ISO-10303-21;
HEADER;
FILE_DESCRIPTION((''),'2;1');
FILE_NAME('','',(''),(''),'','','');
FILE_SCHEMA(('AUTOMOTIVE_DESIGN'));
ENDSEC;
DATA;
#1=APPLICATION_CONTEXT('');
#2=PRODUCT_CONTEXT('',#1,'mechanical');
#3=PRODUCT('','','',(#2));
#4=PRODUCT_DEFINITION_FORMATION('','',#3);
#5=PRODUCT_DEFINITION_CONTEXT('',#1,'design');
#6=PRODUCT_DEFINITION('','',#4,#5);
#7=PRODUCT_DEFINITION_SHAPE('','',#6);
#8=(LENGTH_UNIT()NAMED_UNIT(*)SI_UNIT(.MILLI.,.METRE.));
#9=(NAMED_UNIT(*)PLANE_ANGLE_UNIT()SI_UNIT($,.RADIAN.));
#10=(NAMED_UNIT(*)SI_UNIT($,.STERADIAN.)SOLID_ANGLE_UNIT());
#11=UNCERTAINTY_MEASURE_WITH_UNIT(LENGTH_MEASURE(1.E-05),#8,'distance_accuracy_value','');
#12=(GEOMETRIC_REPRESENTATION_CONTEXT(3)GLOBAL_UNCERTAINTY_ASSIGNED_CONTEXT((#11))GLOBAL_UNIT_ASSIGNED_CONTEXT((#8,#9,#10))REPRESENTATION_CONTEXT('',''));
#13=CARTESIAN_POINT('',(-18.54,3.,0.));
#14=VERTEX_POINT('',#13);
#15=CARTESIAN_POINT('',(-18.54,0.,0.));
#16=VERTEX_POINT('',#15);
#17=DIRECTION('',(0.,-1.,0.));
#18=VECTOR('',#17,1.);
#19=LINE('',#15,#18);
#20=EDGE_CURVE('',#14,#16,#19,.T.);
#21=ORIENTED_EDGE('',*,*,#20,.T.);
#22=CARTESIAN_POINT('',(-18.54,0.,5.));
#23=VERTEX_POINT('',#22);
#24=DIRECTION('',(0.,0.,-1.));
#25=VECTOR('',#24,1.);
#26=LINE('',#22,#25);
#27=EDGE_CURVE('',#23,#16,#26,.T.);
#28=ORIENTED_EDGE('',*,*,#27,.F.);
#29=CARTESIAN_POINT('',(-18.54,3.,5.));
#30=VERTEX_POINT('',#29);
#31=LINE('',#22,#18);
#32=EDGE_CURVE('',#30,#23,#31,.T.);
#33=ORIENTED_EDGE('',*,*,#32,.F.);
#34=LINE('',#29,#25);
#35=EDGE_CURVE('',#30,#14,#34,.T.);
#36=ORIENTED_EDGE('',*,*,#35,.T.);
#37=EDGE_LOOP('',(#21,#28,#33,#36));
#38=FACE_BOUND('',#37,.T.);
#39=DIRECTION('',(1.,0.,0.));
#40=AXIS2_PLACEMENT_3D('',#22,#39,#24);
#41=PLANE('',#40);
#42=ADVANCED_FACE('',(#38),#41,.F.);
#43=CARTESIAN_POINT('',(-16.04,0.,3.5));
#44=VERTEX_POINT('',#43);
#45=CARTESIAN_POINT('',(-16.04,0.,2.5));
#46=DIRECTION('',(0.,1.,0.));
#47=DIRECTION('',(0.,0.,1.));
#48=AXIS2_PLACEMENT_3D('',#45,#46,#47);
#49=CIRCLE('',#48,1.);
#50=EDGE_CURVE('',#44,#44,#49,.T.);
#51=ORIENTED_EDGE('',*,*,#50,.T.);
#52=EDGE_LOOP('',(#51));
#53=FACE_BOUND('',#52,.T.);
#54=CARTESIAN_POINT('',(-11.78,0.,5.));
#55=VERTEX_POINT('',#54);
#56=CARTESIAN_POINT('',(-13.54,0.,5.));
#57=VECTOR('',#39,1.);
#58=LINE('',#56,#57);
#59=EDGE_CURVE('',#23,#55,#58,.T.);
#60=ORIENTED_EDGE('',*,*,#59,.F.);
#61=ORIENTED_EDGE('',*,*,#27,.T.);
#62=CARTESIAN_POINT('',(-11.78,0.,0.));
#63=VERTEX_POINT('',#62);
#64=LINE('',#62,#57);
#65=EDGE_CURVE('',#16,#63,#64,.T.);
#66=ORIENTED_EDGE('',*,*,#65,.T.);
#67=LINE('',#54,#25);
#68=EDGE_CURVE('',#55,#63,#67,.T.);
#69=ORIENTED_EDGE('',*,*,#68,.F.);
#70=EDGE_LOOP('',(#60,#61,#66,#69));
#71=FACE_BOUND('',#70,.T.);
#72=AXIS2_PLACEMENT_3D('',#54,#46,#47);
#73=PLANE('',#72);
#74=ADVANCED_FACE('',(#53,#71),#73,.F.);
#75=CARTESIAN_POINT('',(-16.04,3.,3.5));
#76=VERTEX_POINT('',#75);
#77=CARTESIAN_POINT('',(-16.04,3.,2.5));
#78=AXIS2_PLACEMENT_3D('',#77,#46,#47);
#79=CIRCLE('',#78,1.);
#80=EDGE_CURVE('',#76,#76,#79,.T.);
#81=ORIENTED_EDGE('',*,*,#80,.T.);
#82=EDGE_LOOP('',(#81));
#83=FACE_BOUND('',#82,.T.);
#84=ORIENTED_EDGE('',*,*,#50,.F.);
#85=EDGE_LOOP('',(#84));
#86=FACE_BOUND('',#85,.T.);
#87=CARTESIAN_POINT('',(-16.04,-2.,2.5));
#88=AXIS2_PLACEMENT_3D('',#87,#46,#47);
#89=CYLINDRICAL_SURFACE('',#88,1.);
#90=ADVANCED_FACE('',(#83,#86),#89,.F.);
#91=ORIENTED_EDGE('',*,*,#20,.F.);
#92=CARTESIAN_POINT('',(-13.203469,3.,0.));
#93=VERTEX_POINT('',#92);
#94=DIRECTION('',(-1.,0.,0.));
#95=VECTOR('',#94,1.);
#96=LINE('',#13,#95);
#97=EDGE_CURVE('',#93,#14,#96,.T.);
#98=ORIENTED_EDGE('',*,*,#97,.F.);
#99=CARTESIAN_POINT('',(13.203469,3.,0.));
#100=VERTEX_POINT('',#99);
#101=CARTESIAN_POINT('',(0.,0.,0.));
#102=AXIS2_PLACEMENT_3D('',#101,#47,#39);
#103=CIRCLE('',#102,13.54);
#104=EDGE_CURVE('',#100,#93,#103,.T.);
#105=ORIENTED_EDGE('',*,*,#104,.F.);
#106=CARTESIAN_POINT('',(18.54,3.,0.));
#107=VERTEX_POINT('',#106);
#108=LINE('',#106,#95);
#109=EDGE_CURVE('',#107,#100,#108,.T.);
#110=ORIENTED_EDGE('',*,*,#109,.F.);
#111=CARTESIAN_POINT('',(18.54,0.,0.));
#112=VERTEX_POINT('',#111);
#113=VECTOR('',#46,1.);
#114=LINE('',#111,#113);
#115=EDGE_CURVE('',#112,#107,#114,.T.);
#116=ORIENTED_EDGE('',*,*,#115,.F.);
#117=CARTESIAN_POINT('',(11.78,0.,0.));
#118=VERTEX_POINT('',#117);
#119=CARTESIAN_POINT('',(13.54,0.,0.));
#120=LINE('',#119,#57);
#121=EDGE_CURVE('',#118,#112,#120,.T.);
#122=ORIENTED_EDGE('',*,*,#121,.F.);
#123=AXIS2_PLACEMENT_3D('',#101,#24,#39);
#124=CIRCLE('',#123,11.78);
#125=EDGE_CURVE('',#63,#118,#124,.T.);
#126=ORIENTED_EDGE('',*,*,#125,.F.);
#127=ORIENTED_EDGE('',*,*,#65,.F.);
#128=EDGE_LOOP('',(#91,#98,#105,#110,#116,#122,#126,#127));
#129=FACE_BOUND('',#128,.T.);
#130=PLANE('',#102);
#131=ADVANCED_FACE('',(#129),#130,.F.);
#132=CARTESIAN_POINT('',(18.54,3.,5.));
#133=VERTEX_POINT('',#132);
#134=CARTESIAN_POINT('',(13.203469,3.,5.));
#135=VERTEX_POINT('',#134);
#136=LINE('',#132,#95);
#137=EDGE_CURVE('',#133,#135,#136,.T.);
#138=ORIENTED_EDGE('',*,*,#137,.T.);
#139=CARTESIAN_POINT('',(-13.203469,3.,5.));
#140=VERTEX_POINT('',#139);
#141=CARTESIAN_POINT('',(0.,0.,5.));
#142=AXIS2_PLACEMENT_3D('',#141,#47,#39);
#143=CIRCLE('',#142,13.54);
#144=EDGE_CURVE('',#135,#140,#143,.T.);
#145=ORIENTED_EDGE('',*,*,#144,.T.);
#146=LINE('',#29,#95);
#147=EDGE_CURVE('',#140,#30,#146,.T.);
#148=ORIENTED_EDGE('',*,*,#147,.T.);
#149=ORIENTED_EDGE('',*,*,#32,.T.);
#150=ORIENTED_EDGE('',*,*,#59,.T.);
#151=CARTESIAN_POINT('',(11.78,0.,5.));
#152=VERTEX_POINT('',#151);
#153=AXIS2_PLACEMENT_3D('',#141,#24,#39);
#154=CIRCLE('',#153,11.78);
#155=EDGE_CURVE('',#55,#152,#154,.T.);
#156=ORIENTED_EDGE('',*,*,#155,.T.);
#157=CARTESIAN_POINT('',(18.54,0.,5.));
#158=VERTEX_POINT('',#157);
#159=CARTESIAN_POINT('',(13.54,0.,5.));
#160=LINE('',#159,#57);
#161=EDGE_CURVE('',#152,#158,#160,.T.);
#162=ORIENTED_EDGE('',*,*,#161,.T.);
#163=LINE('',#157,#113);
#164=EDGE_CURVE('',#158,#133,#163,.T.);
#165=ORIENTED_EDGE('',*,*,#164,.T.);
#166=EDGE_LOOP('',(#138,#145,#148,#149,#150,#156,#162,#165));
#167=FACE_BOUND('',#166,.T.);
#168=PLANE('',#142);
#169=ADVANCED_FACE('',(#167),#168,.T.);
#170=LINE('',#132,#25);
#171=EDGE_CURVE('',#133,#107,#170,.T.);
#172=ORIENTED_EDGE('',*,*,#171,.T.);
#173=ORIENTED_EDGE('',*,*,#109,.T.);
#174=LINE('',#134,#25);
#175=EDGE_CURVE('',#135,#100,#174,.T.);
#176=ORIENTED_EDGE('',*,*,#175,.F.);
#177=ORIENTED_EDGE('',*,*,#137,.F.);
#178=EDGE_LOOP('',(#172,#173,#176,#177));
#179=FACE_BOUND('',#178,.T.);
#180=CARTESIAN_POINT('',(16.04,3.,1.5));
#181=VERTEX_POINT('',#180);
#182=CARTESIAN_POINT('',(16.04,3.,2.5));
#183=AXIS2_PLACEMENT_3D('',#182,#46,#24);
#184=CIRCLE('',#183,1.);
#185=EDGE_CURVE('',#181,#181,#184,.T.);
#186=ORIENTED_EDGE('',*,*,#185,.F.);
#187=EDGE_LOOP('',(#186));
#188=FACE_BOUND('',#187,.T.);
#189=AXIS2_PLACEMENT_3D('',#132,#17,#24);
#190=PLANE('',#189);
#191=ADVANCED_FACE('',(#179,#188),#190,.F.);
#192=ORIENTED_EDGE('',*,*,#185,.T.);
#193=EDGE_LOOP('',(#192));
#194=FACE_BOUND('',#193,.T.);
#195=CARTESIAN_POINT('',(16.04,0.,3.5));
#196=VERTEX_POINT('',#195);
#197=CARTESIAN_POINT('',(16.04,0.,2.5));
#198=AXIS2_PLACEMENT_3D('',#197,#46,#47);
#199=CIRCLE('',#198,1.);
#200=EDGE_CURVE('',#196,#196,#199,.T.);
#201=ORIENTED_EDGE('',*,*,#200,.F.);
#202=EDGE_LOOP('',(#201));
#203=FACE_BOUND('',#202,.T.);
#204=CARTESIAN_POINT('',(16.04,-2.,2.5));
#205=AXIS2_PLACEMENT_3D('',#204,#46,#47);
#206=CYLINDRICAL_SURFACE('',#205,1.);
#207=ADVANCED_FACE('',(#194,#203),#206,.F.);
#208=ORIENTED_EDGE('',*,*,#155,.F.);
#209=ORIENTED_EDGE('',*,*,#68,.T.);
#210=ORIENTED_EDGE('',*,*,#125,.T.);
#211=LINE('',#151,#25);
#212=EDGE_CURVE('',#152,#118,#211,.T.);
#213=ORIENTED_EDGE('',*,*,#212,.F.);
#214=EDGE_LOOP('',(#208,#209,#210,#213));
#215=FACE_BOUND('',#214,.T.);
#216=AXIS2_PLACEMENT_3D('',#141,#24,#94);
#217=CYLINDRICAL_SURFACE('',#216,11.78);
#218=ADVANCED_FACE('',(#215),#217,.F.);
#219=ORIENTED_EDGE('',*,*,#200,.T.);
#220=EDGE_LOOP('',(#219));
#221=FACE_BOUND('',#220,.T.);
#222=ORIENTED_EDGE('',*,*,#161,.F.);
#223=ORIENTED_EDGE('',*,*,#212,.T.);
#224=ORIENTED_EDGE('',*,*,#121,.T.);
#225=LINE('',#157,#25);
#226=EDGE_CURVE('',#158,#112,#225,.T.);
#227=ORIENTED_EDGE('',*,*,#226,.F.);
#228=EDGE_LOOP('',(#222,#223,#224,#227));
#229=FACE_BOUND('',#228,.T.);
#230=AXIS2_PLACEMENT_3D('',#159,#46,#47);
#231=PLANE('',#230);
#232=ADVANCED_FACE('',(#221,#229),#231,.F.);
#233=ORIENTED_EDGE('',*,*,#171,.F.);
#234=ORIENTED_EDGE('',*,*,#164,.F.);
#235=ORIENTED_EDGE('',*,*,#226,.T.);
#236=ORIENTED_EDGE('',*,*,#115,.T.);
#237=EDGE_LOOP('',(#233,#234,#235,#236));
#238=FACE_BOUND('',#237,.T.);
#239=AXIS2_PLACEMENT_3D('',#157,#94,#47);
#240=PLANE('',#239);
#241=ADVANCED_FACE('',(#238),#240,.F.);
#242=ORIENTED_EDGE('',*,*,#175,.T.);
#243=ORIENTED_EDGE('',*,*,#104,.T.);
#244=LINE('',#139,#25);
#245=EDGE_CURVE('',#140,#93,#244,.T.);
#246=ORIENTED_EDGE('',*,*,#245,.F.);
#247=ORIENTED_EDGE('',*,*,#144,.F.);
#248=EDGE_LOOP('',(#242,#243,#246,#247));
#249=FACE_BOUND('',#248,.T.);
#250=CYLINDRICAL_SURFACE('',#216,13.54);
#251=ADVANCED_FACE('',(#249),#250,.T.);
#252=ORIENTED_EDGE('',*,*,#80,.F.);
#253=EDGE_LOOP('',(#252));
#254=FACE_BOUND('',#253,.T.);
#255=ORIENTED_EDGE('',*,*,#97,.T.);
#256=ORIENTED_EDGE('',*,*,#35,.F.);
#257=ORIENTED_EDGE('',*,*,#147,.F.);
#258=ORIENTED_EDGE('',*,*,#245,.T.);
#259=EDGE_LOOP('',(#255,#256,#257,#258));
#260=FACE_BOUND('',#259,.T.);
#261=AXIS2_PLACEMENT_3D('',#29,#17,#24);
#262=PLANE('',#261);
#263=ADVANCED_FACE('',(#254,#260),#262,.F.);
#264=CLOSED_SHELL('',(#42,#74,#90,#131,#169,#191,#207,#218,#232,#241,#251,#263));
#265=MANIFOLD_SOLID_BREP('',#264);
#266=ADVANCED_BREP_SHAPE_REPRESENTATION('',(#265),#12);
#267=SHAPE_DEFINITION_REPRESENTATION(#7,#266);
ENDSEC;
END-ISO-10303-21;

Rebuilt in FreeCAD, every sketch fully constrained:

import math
import FreeCAD as App
import Part
import Sketcher

V = App.Vector
Q = App.Units.Quantity

doc = App.newDocument("Part")
body = doc.addObject("PartDesign::Body", "Body")

sketch1 = body.newObject("Sketcher::SketchObject", "Sketch")
sketch1.AttachmentSupport = (doc.getObject("XY_Plane"), [""])
sketch1.MapMode = "FlatFace"
sketch1.addGeometry([
    Part.LineSegment(V(18.54, 0, 0), V(18.54, 3, 0)),
    Part.LineSegment(V(18.54, 3, 0), V(13.203469, 3, 0)),
    Part.ArcOfCircle(Part.Circle(V(0, 0, 0), V(0, 0, 1), 13.54), math.radians(12.801013), math.radians(167.198987)),
    Part.LineSegment(V(-13.203469, 3, 0), V(-18.54, 3, 0)),
    Part.LineSegment(V(-18.54, 3, 0), V(-18.54, 0, 0)),
    Part.LineSegment(V(-18.54, 0, 0), V(-11.78, 0, 0)),
    Part.ArcOfCircle(Part.Circle(V(0, 0, 0), V(0, 0, 1), 11.78), math.radians(0), math.radians(180)),
    Part.LineSegment(V(11.78, 0, 0), V(18.54, 0, 0)),
], False)
sketch1.addConstraint([
    Sketcher.Constraint("Coincident", 0, 2, 1, 1),
    Sketcher.Constraint("Coincident", 1, 2, 2, 1),
    Sketcher.Constraint("Coincident", 2, 2, 3, 1),
    Sketcher.Constraint("Coincident", 3, 2, 4, 1),
    Sketcher.Constraint("Coincident", 4, 2, 5, 1),
    Sketcher.Constraint("Coincident", 5, 2, 6, 2),
    Sketcher.Constraint("Coincident", 6, 1, 7, 1),
    Sketcher.Constraint("Coincident", 7, 2, 0, 1),
    Sketcher.Constraint("Vertical", 0),
    Sketcher.Constraint("Horizontal", 1),
    Sketcher.Constraint("Horizontal", 3),
    Sketcher.Constraint("Vertical", 4),
    Sketcher.Constraint("Horizontal", 5),
    Sketcher.Constraint("Horizontal", 7),
    Sketcher.Constraint("Coincident", 2, 3, -1, 1),
    Sketcher.Constraint("Coincident", 6, 3, -1, 1),
    Sketcher.Constraint("Symmetric", 4, 2, 7, 2, -1, 1),
    Sketcher.Constraint("PointOnObject", 4, 2, -1),
    Sketcher.Constraint("Horizontal", 1, 2, 2, 2),
    Sketcher.Constraint("DistanceY", 0, 1, 0, 2, Q("3 mm")),
    Sketcher.Constraint("Radius", 2, Q("13.54 mm")),
    Sketcher.Constraint("Radius", 6, Q("11.78 mm")),
    Sketcher.Constraint("DistanceX", 5, 1, 5, 2, Q("6.76 mm")),
])
pad1 = body.newObject("PartDesign::Pad", "Pad")
pad1.Profile = sketch1
pad1.Length = 5

sketch2 = body.newObject("Sketcher::SketchObject", "Sketch001")
sketch2.AttachmentSupport = (doc.getObject("XZ_Plane"), [""])
sketch2.MapMode = "FlatFace"
sketch2.AttachmentOffset = App.Placement(V(0, 0, -3), App.Rotation())
sketch2.addGeometry([
    Part.Circle(V(-16.04, 2.5, 0), V(0, 0, 1), 1),
    Part.Circle(V(16.04, 2.5, 0), V(0, 0, 1), 1),
], False)
sketch2.addConstraint([
    Sketcher.Constraint("Equal", 0, 1),
    Sketcher.Constraint("Symmetric", 0, 3, 1, 3, -2),
    Sketcher.Constraint("Diameter", 0, Q("2 mm")),
    Sketcher.Constraint("DistanceY", -1, 1, 0, 3, Q("2.5 mm")),
    Sketcher.Constraint("DistanceX", 0, 3, -1, 1, Q("16.04 mm")),
])
pocket1 = body.newObject("PartDesign::Pocket", "Pocket")
pocket1.Profile = sketch2
pocket1.Length = 5
pocket1.Reversed = True

doc.recompute()
